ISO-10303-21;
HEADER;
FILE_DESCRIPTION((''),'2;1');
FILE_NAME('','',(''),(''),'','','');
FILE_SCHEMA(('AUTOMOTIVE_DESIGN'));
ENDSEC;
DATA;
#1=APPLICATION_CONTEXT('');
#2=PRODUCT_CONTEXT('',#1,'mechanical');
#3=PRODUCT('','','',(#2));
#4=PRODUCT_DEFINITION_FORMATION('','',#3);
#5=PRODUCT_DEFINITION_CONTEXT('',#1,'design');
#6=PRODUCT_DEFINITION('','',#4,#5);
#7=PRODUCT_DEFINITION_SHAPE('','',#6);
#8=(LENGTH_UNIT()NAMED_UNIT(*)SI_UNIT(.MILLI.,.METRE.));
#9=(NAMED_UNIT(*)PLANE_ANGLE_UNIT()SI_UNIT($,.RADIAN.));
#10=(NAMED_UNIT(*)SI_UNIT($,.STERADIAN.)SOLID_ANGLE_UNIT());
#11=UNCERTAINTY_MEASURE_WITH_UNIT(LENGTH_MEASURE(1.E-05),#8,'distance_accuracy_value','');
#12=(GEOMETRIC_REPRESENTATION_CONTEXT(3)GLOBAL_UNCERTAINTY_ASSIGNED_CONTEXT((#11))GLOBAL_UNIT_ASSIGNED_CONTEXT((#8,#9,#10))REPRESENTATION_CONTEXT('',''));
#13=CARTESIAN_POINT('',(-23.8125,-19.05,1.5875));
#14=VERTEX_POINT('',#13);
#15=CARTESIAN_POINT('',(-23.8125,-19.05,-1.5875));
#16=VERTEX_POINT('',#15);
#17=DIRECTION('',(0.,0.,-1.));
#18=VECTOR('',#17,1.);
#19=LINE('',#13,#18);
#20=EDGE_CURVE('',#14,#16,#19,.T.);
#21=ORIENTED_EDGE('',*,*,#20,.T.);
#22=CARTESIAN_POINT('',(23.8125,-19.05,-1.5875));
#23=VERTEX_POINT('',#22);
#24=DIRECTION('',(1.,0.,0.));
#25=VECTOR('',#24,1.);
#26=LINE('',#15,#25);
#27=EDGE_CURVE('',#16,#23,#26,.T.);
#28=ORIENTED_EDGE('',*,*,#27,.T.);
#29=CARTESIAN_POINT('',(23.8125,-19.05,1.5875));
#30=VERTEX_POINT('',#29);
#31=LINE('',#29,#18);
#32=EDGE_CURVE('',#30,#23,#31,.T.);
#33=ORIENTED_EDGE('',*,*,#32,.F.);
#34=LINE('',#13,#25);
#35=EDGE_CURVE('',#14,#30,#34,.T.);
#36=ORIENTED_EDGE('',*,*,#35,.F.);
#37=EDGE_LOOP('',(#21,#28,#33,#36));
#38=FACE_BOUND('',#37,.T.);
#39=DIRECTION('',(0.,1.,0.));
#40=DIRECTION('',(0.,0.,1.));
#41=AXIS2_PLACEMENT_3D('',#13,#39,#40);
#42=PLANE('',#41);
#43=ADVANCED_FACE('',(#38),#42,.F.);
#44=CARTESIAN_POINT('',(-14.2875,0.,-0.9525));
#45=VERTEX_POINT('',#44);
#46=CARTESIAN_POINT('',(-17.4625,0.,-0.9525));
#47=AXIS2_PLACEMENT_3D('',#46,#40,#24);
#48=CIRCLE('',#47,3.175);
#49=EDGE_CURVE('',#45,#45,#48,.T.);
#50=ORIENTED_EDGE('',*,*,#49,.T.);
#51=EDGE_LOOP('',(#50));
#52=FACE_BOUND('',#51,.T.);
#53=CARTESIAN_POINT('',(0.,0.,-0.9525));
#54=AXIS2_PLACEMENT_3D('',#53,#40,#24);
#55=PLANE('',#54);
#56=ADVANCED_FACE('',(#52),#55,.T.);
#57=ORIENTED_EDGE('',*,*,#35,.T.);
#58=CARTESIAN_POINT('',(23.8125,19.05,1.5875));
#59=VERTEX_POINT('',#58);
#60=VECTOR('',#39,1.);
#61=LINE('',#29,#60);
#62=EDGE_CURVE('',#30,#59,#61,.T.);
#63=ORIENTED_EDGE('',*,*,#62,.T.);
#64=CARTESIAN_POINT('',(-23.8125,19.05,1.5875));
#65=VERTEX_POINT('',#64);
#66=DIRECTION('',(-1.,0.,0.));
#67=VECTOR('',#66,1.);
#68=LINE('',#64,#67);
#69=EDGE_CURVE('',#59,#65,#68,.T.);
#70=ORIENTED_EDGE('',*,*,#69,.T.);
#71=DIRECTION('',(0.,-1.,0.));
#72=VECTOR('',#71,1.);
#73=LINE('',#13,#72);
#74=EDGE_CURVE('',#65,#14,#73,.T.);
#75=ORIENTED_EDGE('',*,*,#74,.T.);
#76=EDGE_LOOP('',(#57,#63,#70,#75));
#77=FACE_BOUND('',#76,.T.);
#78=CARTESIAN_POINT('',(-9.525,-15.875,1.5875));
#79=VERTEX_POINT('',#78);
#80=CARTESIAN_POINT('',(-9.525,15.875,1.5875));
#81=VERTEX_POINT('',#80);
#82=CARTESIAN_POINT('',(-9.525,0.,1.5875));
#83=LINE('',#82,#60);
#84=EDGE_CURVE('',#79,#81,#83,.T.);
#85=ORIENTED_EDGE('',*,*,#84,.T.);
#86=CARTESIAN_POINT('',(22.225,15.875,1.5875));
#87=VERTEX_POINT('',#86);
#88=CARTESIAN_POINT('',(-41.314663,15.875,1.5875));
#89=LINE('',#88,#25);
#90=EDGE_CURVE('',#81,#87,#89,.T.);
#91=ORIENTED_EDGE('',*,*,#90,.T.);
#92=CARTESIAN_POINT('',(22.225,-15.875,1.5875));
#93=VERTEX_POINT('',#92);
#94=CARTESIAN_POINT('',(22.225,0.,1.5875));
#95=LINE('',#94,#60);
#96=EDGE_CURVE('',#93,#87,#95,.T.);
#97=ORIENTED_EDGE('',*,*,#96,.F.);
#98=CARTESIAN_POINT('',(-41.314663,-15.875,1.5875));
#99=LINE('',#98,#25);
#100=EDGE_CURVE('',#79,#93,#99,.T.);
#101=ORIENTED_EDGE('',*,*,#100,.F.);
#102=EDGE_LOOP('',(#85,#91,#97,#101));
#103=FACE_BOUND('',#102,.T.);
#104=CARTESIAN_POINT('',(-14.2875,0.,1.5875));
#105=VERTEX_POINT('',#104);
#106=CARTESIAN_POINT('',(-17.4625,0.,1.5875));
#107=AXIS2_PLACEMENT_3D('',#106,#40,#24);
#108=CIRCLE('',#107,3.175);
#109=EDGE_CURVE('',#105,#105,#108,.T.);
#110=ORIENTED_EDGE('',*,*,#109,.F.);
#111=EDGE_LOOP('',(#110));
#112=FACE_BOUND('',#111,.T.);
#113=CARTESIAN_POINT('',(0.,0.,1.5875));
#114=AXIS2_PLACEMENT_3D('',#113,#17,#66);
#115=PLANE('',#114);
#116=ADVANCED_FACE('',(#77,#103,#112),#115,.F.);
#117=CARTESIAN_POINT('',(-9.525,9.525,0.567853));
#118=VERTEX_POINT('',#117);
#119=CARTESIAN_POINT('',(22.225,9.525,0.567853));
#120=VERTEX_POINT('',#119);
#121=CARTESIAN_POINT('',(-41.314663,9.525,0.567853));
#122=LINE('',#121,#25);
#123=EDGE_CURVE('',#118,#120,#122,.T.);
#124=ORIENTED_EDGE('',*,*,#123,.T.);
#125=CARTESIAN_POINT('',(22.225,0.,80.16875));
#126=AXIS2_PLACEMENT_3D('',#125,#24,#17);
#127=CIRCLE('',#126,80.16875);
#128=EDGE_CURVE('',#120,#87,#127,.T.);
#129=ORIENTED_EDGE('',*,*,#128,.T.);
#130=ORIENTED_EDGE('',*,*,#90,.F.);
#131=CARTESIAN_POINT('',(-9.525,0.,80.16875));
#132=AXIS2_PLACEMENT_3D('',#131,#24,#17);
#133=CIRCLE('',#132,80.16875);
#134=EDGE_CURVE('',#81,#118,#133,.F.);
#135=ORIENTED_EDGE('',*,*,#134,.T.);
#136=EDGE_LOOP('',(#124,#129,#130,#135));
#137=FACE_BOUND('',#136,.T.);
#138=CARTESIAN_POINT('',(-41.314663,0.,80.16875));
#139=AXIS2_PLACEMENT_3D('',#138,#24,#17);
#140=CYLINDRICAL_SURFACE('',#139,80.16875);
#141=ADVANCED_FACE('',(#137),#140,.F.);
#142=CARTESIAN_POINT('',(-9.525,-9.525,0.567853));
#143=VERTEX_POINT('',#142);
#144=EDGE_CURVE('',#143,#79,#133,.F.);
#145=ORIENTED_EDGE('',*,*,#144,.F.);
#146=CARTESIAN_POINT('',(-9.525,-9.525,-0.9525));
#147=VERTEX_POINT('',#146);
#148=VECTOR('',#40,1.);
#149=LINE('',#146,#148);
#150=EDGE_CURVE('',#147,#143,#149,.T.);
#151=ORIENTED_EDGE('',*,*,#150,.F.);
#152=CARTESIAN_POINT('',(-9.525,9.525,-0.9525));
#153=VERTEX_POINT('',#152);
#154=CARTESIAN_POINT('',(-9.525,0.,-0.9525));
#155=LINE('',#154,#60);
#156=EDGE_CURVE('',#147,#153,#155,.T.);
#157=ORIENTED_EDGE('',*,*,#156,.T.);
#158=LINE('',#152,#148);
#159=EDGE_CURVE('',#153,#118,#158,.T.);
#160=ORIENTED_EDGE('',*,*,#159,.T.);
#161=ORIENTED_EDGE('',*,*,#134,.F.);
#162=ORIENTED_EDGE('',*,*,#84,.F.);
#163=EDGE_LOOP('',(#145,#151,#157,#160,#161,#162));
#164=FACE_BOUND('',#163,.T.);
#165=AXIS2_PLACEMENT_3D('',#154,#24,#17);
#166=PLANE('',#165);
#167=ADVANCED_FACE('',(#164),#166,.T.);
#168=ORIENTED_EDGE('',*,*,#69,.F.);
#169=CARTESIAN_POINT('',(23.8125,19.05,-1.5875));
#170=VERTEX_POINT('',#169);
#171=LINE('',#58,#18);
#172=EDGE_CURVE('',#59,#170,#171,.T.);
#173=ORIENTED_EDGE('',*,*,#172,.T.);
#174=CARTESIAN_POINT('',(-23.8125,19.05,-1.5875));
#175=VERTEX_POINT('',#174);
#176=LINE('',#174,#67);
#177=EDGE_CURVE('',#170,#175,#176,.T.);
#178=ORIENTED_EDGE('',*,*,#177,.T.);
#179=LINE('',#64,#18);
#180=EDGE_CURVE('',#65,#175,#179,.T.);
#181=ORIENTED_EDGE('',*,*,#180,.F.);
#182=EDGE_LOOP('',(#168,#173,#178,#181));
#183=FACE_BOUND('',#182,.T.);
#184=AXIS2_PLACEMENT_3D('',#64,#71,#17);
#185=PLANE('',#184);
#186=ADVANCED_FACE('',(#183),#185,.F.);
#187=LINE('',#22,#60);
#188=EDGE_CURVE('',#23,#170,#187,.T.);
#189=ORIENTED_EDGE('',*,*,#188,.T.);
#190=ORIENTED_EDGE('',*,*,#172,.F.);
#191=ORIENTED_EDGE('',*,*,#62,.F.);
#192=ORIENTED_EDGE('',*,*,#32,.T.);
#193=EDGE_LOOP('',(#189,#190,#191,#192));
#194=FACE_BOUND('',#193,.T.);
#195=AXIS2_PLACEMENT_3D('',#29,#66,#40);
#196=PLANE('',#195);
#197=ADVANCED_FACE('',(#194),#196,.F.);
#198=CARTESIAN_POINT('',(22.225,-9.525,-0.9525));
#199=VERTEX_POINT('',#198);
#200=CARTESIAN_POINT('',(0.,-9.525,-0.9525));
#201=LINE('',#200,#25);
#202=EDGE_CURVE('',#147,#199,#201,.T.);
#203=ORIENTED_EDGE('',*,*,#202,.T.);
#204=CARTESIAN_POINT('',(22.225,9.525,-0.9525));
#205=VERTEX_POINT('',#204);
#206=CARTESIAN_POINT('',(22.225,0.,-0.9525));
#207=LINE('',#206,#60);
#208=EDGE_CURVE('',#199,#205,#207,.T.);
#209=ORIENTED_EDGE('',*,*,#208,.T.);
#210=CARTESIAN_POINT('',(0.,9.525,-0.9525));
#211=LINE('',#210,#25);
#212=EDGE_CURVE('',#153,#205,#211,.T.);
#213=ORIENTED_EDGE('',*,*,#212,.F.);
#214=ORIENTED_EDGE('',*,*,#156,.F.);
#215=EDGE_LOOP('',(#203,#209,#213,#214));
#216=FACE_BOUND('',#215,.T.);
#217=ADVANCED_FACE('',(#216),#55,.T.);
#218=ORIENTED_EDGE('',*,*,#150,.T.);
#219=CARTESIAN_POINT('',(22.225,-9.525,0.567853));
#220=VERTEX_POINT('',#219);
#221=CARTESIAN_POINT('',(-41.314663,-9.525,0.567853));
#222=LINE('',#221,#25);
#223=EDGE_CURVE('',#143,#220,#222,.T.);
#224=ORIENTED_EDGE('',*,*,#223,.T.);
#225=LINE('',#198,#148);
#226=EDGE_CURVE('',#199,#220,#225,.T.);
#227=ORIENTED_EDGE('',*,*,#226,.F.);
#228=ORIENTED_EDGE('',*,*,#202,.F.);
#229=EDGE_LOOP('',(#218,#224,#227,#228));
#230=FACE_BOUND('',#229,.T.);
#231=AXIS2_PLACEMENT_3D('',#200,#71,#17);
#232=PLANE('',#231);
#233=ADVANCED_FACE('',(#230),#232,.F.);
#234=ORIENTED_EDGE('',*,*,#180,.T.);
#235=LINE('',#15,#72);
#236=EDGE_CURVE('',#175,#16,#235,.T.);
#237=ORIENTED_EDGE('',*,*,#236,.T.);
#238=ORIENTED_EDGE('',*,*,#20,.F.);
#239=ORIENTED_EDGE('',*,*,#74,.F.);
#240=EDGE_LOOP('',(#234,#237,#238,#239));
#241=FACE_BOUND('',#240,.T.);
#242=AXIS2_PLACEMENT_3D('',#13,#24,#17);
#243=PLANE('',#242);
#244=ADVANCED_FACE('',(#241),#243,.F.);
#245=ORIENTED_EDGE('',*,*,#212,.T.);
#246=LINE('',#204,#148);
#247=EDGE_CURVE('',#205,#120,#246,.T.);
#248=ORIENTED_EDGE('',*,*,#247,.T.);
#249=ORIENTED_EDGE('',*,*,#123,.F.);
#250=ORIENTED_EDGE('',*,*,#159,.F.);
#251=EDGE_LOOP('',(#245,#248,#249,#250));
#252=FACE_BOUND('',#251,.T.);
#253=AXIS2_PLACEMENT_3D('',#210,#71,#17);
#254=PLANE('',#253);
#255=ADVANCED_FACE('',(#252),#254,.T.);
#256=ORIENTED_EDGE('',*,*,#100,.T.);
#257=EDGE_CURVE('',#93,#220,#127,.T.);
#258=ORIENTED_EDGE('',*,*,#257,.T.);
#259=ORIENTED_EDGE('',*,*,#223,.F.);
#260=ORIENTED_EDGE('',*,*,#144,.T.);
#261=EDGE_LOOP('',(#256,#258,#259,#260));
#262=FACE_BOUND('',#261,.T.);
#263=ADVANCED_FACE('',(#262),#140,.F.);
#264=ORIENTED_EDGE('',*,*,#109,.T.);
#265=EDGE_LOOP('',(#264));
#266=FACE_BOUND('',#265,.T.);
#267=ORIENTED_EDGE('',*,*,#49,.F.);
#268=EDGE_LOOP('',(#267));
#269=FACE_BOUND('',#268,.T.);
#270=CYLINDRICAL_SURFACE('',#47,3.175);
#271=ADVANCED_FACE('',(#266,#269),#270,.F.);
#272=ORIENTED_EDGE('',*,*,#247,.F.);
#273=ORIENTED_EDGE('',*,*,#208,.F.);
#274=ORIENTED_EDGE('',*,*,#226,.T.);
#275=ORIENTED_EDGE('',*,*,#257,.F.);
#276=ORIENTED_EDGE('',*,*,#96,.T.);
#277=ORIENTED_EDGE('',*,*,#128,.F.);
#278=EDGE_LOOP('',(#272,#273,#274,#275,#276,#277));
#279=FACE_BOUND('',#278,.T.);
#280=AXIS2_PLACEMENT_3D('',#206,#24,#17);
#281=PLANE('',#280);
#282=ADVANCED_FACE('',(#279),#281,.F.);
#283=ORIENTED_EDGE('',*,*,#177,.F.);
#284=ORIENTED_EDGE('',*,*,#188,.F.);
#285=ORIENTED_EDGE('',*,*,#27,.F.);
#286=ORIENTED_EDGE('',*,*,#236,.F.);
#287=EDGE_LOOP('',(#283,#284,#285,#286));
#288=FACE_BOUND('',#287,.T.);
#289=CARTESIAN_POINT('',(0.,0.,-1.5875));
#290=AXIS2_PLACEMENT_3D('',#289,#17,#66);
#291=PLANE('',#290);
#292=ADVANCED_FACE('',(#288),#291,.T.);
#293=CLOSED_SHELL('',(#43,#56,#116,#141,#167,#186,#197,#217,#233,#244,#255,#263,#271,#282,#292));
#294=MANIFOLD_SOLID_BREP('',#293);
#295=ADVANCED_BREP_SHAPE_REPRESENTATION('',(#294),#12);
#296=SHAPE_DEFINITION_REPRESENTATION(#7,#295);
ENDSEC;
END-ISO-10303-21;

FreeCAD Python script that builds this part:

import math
import FreeCAD as App
import Part
import Sketcher
Q = App.Units.Quantity


def add_polygon(sketch, points):
    """Adds a closed chain of lines whose ends are joined by coincident constraints."""
    first, n = sketch.GeometryCount, len(points)
    for a, b in zip(points, points[1:] + points[:1]):
        sketch.addGeometry(Part.LineSegment(App.Vector(*a, 0), App.Vector(*b, 0)), False)
    for i in range(n):
        sketch.addConstraint(Sketcher.Constraint("Coincident", first + i, 2, first + (i + 1) % n, 1))

doc = App.newDocument("Part")
body = doc.addObject("PartDesign::Body", "Body")

sketch1 = body.newObject("Sketcher::SketchObject", "Sketch")
sketch1.AttachmentSupport = (doc.getObject("XY_Plane"), [""])
sketch1.MapMode = "FlatFace"
add_polygon(sketch1, [(-23.8125, 19.05), (-23.8125, -19.05), (23.8125, -19.05), (23.8125, 19.05)])
sketch1.addConstraint([
    Sketcher.Constraint("Vertical", 0),
    Sketcher.Constraint("Horizontal", 1),
    Sketcher.Constraint("Vertical", 2),
    Sketcher.Constraint("Horizontal", 3),
    Sketcher.Constraint("Symmetric", 0, 2, 2, 2, -1, 1),
    Sketcher.Constraint("DistanceY", 0, 2, 0, 1, Q("1.5 in")),
    Sketcher.Constraint("DistanceX", 1, 1, 1, 2, Q("1.875 in")),
])
pad1 = body.newObject("PartDesign::Pad", "Pad")
pad1.Profile = sketch1
pad1.Length = Q("0.125 in")
pad1.Midplane = True

sketch2 = body.newObject("Sketcher::SketchObject", "Sketch001")
sketch2.AttachmentSupport = (doc.getObject("XY_Plane"), [""])
sketch2.MapMode = "FlatFace"
sketch2.AttachmentOffset = App.Placement(App.Vector(0, 0, 0.0625 * 25.4), App.Rotation())
add_polygon(sketch2, [(-9.525, 9.525), (-9.525, -9.525), (22.225, -9.525), (22.225, 9.525)])
sketch2.addGeometry(Part.Circle(App.Vector(-17.4625, 0, 0), App.Vector(0, 0, 1), 3.175), False)
sketch2.addConstraint([
    Sketcher.Constraint("Vertical", 0),
    Sketcher.Constraint("Horizontal", 1),
    Sketcher.Constraint("Vertical", 2),
    Sketcher.Constraint("Horizontal", 3),
    Sketcher.Constraint("PointOnObject", 4, 3, -1),
    Sketcher.Constraint("Diameter", 4, Q("0.25 in")),
    Sketcher.Constraint("DistanceX", 1, 1, 1, 2, Q("1.25 in")),
    Sketcher.Constraint("DistanceY", 0, 2, 0, 1, Q("0.75 in")),
    Sketcher.Constraint("DistanceX", 4, 3, -1, 1, Q("0.6875 in")),
    Sketcher.Constraint("DistanceX", 0, 2, -1, 1, Q("0.375 in")),
    Sketcher.Constraint("DistanceY", 0, 2, -1, 1, Q("0.375 in")),
])
pocket1 = body.newObject("PartDesign::Pocket", "Pocket")
pocket1.Profile = sketch2
pocket1.Length = Q("0.1 in")

sketch3 = body.newObject("Sketcher::SketchObject", "Sketch002")
sketch3.AttachmentSupport = (doc.getObject("YZ_Plane"), [""])
sketch3.MapMode = "FlatFace"
sketch3.AttachmentOffset = App.Placement(App.Vector(0, 0, 0.875 * 25.4), App.Rotation())
sketch3.addGeometry([
    Part.ArcOfCircle(Part.Circle(App.Vector(0, 80.16875, 0), App.Vector(0, 0, 1), 80.16875), math.radians(-90), math.radians(-78.578814)),
    Part.LineSegment(App.Vector(15.875, 1.5875, 0), App.Vector(-15.875, 1.5875, 0)),
    Part.ArcOfCircle(Part.Circle(App.Vector(0, 80.16875, 0), App.Vector(0, 0, 1), 80.16875), math.radians(-101.421186), math.radians(-90)),
], False)
sketch3.addConstraint([
    Sketcher.Constraint("Coincident", 0, 2, 1, 1),
    Sketcher.Constraint("Coincident", 1, 2, 2, 1),
    Sketcher.Constraint("Tangent", 2, 2, 0, 1),
    Sketcher.Constraint("Horizontal", 1),
    Sketcher.Constraint("Coincident", 2, 2, -1, 1),
    Sketcher.Constraint("Equal", 0, 2),
    Sketcher.Constraint("PointOnObject", 0, 3, -2),
    Sketcher.Constraint("Radius", 0, Q("3.15625 in")),
    Sketcher.Constraint("DistanceX", 1, 2, 1, 1, Q("1.25 in")),
])
pocket2 = body.newObject("PartDesign::Pocket", "Pocket001")
pocket2.Profile = sketch3
pocket2.Length = Q("1.25 in")

doc.recompute()
